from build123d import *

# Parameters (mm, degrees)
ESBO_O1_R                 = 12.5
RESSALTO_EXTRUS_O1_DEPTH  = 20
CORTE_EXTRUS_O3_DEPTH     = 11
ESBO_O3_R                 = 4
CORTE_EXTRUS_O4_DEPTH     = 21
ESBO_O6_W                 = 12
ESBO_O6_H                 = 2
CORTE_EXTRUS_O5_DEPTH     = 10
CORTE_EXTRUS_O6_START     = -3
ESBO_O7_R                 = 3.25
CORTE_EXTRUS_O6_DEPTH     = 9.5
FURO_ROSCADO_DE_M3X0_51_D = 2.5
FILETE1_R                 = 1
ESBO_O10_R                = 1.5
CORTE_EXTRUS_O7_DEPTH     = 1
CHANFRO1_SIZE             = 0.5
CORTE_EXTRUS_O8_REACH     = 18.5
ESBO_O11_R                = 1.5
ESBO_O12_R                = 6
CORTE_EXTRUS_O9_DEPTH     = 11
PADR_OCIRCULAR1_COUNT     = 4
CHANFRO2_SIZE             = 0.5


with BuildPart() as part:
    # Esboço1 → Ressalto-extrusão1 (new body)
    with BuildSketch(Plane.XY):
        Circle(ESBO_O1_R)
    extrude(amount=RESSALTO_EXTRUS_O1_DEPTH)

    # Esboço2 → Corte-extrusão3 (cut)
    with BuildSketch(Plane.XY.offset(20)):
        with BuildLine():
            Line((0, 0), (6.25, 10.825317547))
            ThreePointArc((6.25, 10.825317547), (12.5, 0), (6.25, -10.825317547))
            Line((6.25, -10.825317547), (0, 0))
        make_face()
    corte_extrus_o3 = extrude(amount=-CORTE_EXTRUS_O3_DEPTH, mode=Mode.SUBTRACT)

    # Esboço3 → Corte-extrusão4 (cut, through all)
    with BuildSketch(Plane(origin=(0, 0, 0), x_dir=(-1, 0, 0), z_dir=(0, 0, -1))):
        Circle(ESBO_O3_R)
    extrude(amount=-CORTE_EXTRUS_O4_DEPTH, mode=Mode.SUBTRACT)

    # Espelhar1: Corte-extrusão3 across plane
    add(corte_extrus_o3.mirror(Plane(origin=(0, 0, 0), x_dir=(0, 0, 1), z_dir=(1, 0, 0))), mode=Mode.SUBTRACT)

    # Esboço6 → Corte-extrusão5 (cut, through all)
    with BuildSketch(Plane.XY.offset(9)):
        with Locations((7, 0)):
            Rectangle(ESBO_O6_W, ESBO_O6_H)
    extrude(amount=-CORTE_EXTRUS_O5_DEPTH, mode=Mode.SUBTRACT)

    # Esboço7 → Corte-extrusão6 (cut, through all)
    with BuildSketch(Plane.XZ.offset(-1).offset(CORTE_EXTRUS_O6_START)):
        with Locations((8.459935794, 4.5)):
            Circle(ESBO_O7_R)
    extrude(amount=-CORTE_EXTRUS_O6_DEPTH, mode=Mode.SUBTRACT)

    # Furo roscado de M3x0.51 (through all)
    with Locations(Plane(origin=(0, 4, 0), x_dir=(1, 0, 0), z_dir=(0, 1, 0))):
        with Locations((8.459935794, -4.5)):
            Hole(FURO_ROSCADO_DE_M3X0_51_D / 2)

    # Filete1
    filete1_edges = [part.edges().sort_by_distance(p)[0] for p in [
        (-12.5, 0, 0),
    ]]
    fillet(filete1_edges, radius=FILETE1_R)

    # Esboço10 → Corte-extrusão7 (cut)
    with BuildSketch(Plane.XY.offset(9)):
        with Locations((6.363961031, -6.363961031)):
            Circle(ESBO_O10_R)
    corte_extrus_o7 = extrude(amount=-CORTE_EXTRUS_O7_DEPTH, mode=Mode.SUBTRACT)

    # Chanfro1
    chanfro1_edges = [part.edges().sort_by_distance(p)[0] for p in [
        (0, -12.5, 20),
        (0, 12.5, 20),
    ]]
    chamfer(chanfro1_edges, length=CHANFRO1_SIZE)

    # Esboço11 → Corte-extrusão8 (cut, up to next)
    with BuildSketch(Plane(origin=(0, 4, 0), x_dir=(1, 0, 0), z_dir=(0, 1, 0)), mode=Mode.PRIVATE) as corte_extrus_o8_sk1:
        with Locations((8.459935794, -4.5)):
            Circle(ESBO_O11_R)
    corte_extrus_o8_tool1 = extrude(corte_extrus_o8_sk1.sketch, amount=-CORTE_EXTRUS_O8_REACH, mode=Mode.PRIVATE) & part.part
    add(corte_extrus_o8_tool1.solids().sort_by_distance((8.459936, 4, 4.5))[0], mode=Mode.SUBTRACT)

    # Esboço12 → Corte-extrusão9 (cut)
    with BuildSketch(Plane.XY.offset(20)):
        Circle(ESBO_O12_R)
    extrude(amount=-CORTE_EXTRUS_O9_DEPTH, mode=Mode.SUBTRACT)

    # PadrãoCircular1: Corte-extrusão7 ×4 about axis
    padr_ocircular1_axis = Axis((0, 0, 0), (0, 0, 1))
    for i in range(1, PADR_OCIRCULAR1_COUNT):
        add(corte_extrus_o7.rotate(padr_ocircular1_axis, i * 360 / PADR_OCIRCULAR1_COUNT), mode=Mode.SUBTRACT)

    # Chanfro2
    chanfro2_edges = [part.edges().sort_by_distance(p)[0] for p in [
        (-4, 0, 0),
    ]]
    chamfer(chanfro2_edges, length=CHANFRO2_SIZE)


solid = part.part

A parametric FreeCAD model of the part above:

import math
import FreeCAD as App
import Part
import Sketcher

V = App.Vector
Q = App.Units.Quantity


def edges_at(feature, points):
    """Names of the edges that pass closest to the given points."""
    edges = feature.Shape.Edges
    near = lambda p: min(range(len(edges)), key=lambda i: edges[i].distToShape(Part.Vertex(*p))[0])
    return sorted({f"Edge{near(p) + 1}" for p in points})


def add_polygon(sketch, points):
    """Adds a closed chain of lines whose ends are joined by coincident constraints."""
    first, n = sketch.GeometryCount, len(points)
    for a, b in zip(points, points[1:] + points[:1]):
        sketch.addGeometry(Part.LineSegment(App.Vector(*a, 0), App.Vector(*b, 0)), False)
    for i in range(n):
        sketch.addConstraint(Sketcher.Constraint("Coincident", first + i, 2, first + (i + 1) % n, 1))

doc = App.newDocument("Part")
params = doc.addObject("Spreadsheet::Sheet", "Params")
for row, (alias, value) in enumerate([
    ("sketch1_diameter", "25 mm"),
    ("pad1_length", "20 mm"),
    ("sketch2_radius", "12.5 mm"),
    ("pocket1_length", "11 mm"),
    ("sketch3_diameter", "8 mm"),
    ("sketch4_width", "12 mm"),
    ("sketch4_height", "2 mm"),
    ("sketch5_diameter", "6.5 mm"),
    ("sketch6_diameter", "2.5 mm"),
    ("hole_diameter", "2.5 mm"),
    ("fillet_radius", "1 mm"),
    ("sketch7_diameter", "3 mm"),
    ("pocket5_length", "1 mm"),
    ("chamfer_size", "0.5 mm"),
    ("sketch8_diameter", "3 mm"),
    ("pocket6_length", "3 mm"),
    ("sketch9_diameter", "12 mm"),
    ("pocket7_length", "11 mm"),
    ("chamfer2_size", "0.5 mm"),
], start=1):
    params.set(f"A{row}", alias)
    params.set(f"B{row}", "=" + value)
    params.setAlias(f"B{row}", alias)

body = doc.addObject("PartDesign::Body", "Body")

sketch1 = doc.addObject("Sketcher::SketchObject", "Sketch")
body.addObject(sketch1)
sketch1.AttachmentSupport = (doc.XY_Plane, [""])
sketch1.MapMode = "FlatFace"
sketch1.addGeometry(Part.Circle(V(0, 0, 0), V(0, 0, 1), 12), False)
sketch1.addConstraint([
    Sketcher.Constraint("Coincident", 0, 3, -1, 1),
    Sketcher.Constraint("Diameter", 0, Q("25 mm")),
])
sketch1.setExpression("Constraints[1]", "Params.sketch1_diameter")
pad1 = doc.addObject("PartDesign::Pad", "Pad")
body.addObject(pad1)
pad1.Profile = sketch1
pad1.setExpression("Length", "Params.pad1_length")

sketch2 = doc.addObject("Sketcher::SketchObject", "Sketch001")
body.addObject(sketch2)
sketch2.AttachmentSupport = (doc.XY_Plane, [""])
sketch2.MapMode = "FlatFace"
sketch2.AttachmentOffset = App.Placement(V(0, 0, 20), App.Rotation())
sketch2.addGeometry([
    Part.LineSegment(V(6, 11, 0), V(0, 0, 0)),
    Part.LineSegment(V(0, 0, 0), V(6, -11, 0)),
    Part.ArcOfCircle(Part.Circle(V(0, 0, 0), V(0, 0, 1), 12), math.radians(-60), math.radians(60)),
], False)
sketch2.addConstraint([
    Sketcher.Constraint("Coincident", 0, 2, 1, 1),
    Sketcher.Constraint("Coincident", 1, 2, 2, 1),
    Sketcher.Constraint("Coincident", 2, 2, 0, 1),
    Sketcher.Constraint("Coincident", 2, 3, -1, 1),
    Sketcher.Constraint("Coincident", 0, 2, -1, 1),
    Sketcher.Constraint("Vertical", 1, 2, 2, 2),
    Sketcher.Constraint("Radius", 2, Q("12.5 mm")),
    Sketcher.Constraint("Angle", 0, Q("-120 deg")),
])
sketch2.setExpression("Constraints[6]", "Params.sketch2_radius")
pocket1 = doc.addObject("PartDesign::Pocket", "Pocket")
body.addObject(pocket1)
pocket1.Profile = sketch2
pocket1.setExpression("Length", "Params.pocket1_length")

sketch3 = doc.addObject("Sketcher::SketchObject", "Sketch002")
body.addObject(sketch3)
sketch3.AttachmentSupport = (doc.XY_Plane, [""])
sketch3.MapMode = "FlatFace"
sketch3.addGeometry(Part.Circle(V(0, 0, 0), V(0, 0, 1), 4), False)
sketch3.addConstraint([
    Sketcher.Constraint("Coincident", 0, 3, -1, 1),
    Sketcher.Constraint("Diameter", 0, Q("8 mm")),
])
sketch3.setExpression("Constraints[1]", "Params.sketch3_diameter")
pocket2 = doc.addObject("PartDesign::Pocket", "Pocket001")
body.addObject(pocket2)
pocket2.Profile = sketch3
pocket2.Type = "ThroughAll"
pocket2.Reversed = True
doc.recompute()

mirrored = doc.addObject("PartDesign::Mirrored", "Mirrored")
body.addObject(mirrored)
mirrored.Originals = [pocket1]
mirrored.MirrorPlane = (doc.YZ_Plane, [""])
body.Tip = mirrored

sketch4 = doc.addObject("Sketcher::SketchObject", "Sketch003")
body.addObject(sketch4)
sketch4.AttachmentSupport = (doc.XY_Plane, [""])
sketch4.MapMode = "FlatFace"
sketch4.AttachmentOffset = App.Placement(V(0, 0, 9), App.Rotation())
add_polygon(sketch4, [(1, 1), (1, -1), (13, -1), (13, 1)])
sketch4.addConstraint([
    Sketcher.Constraint("Vertical", 0),
    Sketcher.Constraint("Horizontal", 1),
    Sketcher.Constraint("Vertical", 2),
    Sketcher.Constraint("Horizontal", 3),
    Sketcher.Constraint("DistanceX", 1, 1, 1, 2, Q("12 mm")),
    Sketcher.Constraint("DistanceY", 0, 2, 0, 1, Q("2 mm")),
    Sketcher.Constraint("DistanceX", -1, 1, 0, 2, Q("1 mm")),
    Sketcher.Constraint("DistanceY", 0, 2, -1, 1, Q("1 mm")),
])
sketch4.setExpression("Constraints[8]", "Params.sketch4_width")
sketch4.setExpression("Constraints[9]", "Params.sketch4_height")
pocket3 = doc.addObject("PartDesign::Pocket", "Pocket002")
body.addObject(pocket3)
pocket3.Profile = sketch4
pocket3.Type = "ThroughAll"

sketch5 = doc.addObject("Sketcher::SketchObject", "Sketch004")
body.addObject(sketch5)
sketch5.AttachmentSupport = (doc.XZ_Plane, [""])
sketch5.MapMode = "FlatFace"
sketch5.AttachmentOffset = App.Placement(V(0, 0, -4), App.Rotation())
sketch5.addGeometry(Part.Circle(V(8.5, 4.5, 0), V(0, 0, 1), 3.2), False)
sketch5.addConstraint([
    Sketcher.Constraint("Diameter", 0, Q("6.5 mm")),
    Sketcher.Constraint("DistanceY", -1, 1, 0, 3, Q("4.5 mm")),
    Sketcher.Constraint("DistanceX", -1, 1, 0, 3, Q("8.459936 mm")),
])
sketch5.setExpression("Constraints[0]", "Params.sketch5_diameter")
pocket4 = doc.addObject("PartDesign::Pocket", "Pocket003")
body.addObject(pocket4)
pocket4.Profile = sketch5
pocket4.Type = "ThroughAll"

sketch6 = doc.addObject("Sketcher::SketchObject", "Sketch005")
body.addObject(sketch6)
sketch6.AttachmentSupport = (doc.XZ_Plane, [""])
sketch6.MapMode = "FlatFace"
sketch6.AttachmentOffset = App.Placement(V(0, 0, -4), App.Rotation())
sketch6.addGeometry(Part.Circle(V(8.5, 4.5, 0), V(0, 0, 1), 1.2), False)
sketch6.addConstraint([
    Sketcher.Constraint("Diameter", 0, Q("2.5 mm")),
    Sketcher.Constraint("DistanceY", -1, 1, 0, 3, Q("4.5 mm")),
    Sketcher.Constraint("DistanceX", -1, 1, 0, 3, Q("8.459936 mm")),
])
sketch6.setExpression("Constraints[0]", "Params.sketch6_diameter")
doc.recompute()
hole = doc.addObject("PartDesign::Hole", "Hole")
body.addObject(hole)
hole.Profile = sketch6
hole.ThreadType = "None"
hole.setExpression("Diameter", "Params.hole_diameter")
hole.DepthType = "ThroughAll"
hole.Reversed = True
doc.recompute()

fillet = doc.addObject("PartDesign::Fillet", "Fillet")
body.addObject(fillet)
fillet.Base = (hole, edges_at(hole, [(-12.5, 0, 0)]))
fillet.setExpression("Radius", "Params.fillet_radius")

sketch7 = doc.addObject("Sketcher::SketchObject", "Sketch006")
body.addObject(sketch7)
sketch7.AttachmentSupport = (doc.XY_Plane, [""])
sketch7.MapMode = "FlatFace"
sketch7.AttachmentOffset = App.Placement(V(0, 0, 9), App.Rotation())
sketch7.addGeometry(Part.Circle(V(6.4, -6.4, 0), V(0, 0, 1), 1.5), False)
sketch7.addConstraint([
    Sketcher.Constraint("Diameter", 0, Q("3 mm")),
    Sketcher.Constraint("DistanceX", -1, 1, 0, 3, Q("6.363961 mm")),
    Sketcher.Constraint("DistanceY", 0, 3, -1, 1, Q("6.363961 mm")),
])
sketch7.setExpression("Constraints[0]", "Params.sketch7_diameter")
pocket5 = doc.addObject("PartDesign::Pocket", "Pocket004")
body.addObject(pocket5)
pocket5.Profile = sketch7
pocket5.setExpression("Length", "Params.pocket5_length")
doc.recompute()

chamfer = doc.addObject("PartDesign::Chamfer", "Chamfer")
body.addObject(chamfer)
chamfer.Base = (pocket5, edges_at(pocket5, [(0, -12.5, 20), (0, 12.5, 20)]))
chamfer.setExpression("Size", "Params.chamfer_size")

sketch8 = doc.addObject("Sketcher::SketchObject", "Sketch007")
body.addObject(sketch8)
sketch8.AttachmentSupport = (doc.XZ_Plane, [""])
sketch8.MapMode = "FlatFace"
sketch8.AttachmentOffset = App.Placement(V(0, 0, -4), App.Rotation())
sketch8.addGeometry(Part.Circle(V(8.5, 4.5, 0), V(0, 0, 1), 1.5), False)
sketch8.addConstraint([
    Sketcher.Constraint("Diameter", 0, Q("3 mm")),
    Sketcher.Constraint("DistanceY", -1, 1, 0, 3, Q("4.5 mm")),
    Sketcher.Constraint("DistanceX", -1, 1, 0, 3, Q("8.459936 mm")),
])
sketch8.setExpression("Constraints[0]", "Params.sketch8_diameter")
pocket6 = doc.addObject("PartDesign::Pocket", "Pocket005")
body.addObject(pocket6)
pocket6.Profile = sketch8
pocket6.setExpression("Length", "Params.pocket6_length")
pocket6.Reversed = True

sketch9 = doc.addObject("Sketcher::SketchObject", "Sketch008")
body.addObject(sketch9)
sketch9.AttachmentSupport = (doc.XY_Plane, [""])
sketch9.MapMode = "FlatFace"
sketch9.AttachmentOffset = App.Placement(V(0, 0, 20), App.Rotation())
sketch9.addGeometry(Part.Circle(V(0, 0, 0), V(0, 0, 1), 6), False)
sketch9.addConstraint([
    Sketcher.Constraint("Coincident", 0, 3, -1, 1),
    Sketcher.Constraint("Diameter", 0, Q("12 mm")),
])
sketch9.setExpression("Constraints[1]", "Params.sketch9_diameter")
pocket7 = doc.addObject("PartDesign::Pocket", "Pocket006")
body.addObject(pocket7)
pocket7.Profile = sketch9
pocket7.setExpression("Length", "Params.pocket7_length")
doc.recompute()

polarpattern = doc.addObject("PartDesign::PolarPattern", "PolarPattern")
body.addObject(polarpattern)
polarpattern.Originals = [pocket5]
polarpattern.Axis = (doc.Z_Axis, [""])
polarpattern.Angle = 360
polarpattern.Occurrences = 4
body.Tip = polarpattern
doc.recompute()

chamfer2 = doc.addObject("PartDesign::Chamfer", "Chamfer001")
body.addObject(chamfer2)
chamfer2.Base = (polarpattern, edges_at(polarpattern, [(-4, 0, 0)]))
chamfer2.setExpression("Size", "Params.chamfer2_size")

doc.recompute()
